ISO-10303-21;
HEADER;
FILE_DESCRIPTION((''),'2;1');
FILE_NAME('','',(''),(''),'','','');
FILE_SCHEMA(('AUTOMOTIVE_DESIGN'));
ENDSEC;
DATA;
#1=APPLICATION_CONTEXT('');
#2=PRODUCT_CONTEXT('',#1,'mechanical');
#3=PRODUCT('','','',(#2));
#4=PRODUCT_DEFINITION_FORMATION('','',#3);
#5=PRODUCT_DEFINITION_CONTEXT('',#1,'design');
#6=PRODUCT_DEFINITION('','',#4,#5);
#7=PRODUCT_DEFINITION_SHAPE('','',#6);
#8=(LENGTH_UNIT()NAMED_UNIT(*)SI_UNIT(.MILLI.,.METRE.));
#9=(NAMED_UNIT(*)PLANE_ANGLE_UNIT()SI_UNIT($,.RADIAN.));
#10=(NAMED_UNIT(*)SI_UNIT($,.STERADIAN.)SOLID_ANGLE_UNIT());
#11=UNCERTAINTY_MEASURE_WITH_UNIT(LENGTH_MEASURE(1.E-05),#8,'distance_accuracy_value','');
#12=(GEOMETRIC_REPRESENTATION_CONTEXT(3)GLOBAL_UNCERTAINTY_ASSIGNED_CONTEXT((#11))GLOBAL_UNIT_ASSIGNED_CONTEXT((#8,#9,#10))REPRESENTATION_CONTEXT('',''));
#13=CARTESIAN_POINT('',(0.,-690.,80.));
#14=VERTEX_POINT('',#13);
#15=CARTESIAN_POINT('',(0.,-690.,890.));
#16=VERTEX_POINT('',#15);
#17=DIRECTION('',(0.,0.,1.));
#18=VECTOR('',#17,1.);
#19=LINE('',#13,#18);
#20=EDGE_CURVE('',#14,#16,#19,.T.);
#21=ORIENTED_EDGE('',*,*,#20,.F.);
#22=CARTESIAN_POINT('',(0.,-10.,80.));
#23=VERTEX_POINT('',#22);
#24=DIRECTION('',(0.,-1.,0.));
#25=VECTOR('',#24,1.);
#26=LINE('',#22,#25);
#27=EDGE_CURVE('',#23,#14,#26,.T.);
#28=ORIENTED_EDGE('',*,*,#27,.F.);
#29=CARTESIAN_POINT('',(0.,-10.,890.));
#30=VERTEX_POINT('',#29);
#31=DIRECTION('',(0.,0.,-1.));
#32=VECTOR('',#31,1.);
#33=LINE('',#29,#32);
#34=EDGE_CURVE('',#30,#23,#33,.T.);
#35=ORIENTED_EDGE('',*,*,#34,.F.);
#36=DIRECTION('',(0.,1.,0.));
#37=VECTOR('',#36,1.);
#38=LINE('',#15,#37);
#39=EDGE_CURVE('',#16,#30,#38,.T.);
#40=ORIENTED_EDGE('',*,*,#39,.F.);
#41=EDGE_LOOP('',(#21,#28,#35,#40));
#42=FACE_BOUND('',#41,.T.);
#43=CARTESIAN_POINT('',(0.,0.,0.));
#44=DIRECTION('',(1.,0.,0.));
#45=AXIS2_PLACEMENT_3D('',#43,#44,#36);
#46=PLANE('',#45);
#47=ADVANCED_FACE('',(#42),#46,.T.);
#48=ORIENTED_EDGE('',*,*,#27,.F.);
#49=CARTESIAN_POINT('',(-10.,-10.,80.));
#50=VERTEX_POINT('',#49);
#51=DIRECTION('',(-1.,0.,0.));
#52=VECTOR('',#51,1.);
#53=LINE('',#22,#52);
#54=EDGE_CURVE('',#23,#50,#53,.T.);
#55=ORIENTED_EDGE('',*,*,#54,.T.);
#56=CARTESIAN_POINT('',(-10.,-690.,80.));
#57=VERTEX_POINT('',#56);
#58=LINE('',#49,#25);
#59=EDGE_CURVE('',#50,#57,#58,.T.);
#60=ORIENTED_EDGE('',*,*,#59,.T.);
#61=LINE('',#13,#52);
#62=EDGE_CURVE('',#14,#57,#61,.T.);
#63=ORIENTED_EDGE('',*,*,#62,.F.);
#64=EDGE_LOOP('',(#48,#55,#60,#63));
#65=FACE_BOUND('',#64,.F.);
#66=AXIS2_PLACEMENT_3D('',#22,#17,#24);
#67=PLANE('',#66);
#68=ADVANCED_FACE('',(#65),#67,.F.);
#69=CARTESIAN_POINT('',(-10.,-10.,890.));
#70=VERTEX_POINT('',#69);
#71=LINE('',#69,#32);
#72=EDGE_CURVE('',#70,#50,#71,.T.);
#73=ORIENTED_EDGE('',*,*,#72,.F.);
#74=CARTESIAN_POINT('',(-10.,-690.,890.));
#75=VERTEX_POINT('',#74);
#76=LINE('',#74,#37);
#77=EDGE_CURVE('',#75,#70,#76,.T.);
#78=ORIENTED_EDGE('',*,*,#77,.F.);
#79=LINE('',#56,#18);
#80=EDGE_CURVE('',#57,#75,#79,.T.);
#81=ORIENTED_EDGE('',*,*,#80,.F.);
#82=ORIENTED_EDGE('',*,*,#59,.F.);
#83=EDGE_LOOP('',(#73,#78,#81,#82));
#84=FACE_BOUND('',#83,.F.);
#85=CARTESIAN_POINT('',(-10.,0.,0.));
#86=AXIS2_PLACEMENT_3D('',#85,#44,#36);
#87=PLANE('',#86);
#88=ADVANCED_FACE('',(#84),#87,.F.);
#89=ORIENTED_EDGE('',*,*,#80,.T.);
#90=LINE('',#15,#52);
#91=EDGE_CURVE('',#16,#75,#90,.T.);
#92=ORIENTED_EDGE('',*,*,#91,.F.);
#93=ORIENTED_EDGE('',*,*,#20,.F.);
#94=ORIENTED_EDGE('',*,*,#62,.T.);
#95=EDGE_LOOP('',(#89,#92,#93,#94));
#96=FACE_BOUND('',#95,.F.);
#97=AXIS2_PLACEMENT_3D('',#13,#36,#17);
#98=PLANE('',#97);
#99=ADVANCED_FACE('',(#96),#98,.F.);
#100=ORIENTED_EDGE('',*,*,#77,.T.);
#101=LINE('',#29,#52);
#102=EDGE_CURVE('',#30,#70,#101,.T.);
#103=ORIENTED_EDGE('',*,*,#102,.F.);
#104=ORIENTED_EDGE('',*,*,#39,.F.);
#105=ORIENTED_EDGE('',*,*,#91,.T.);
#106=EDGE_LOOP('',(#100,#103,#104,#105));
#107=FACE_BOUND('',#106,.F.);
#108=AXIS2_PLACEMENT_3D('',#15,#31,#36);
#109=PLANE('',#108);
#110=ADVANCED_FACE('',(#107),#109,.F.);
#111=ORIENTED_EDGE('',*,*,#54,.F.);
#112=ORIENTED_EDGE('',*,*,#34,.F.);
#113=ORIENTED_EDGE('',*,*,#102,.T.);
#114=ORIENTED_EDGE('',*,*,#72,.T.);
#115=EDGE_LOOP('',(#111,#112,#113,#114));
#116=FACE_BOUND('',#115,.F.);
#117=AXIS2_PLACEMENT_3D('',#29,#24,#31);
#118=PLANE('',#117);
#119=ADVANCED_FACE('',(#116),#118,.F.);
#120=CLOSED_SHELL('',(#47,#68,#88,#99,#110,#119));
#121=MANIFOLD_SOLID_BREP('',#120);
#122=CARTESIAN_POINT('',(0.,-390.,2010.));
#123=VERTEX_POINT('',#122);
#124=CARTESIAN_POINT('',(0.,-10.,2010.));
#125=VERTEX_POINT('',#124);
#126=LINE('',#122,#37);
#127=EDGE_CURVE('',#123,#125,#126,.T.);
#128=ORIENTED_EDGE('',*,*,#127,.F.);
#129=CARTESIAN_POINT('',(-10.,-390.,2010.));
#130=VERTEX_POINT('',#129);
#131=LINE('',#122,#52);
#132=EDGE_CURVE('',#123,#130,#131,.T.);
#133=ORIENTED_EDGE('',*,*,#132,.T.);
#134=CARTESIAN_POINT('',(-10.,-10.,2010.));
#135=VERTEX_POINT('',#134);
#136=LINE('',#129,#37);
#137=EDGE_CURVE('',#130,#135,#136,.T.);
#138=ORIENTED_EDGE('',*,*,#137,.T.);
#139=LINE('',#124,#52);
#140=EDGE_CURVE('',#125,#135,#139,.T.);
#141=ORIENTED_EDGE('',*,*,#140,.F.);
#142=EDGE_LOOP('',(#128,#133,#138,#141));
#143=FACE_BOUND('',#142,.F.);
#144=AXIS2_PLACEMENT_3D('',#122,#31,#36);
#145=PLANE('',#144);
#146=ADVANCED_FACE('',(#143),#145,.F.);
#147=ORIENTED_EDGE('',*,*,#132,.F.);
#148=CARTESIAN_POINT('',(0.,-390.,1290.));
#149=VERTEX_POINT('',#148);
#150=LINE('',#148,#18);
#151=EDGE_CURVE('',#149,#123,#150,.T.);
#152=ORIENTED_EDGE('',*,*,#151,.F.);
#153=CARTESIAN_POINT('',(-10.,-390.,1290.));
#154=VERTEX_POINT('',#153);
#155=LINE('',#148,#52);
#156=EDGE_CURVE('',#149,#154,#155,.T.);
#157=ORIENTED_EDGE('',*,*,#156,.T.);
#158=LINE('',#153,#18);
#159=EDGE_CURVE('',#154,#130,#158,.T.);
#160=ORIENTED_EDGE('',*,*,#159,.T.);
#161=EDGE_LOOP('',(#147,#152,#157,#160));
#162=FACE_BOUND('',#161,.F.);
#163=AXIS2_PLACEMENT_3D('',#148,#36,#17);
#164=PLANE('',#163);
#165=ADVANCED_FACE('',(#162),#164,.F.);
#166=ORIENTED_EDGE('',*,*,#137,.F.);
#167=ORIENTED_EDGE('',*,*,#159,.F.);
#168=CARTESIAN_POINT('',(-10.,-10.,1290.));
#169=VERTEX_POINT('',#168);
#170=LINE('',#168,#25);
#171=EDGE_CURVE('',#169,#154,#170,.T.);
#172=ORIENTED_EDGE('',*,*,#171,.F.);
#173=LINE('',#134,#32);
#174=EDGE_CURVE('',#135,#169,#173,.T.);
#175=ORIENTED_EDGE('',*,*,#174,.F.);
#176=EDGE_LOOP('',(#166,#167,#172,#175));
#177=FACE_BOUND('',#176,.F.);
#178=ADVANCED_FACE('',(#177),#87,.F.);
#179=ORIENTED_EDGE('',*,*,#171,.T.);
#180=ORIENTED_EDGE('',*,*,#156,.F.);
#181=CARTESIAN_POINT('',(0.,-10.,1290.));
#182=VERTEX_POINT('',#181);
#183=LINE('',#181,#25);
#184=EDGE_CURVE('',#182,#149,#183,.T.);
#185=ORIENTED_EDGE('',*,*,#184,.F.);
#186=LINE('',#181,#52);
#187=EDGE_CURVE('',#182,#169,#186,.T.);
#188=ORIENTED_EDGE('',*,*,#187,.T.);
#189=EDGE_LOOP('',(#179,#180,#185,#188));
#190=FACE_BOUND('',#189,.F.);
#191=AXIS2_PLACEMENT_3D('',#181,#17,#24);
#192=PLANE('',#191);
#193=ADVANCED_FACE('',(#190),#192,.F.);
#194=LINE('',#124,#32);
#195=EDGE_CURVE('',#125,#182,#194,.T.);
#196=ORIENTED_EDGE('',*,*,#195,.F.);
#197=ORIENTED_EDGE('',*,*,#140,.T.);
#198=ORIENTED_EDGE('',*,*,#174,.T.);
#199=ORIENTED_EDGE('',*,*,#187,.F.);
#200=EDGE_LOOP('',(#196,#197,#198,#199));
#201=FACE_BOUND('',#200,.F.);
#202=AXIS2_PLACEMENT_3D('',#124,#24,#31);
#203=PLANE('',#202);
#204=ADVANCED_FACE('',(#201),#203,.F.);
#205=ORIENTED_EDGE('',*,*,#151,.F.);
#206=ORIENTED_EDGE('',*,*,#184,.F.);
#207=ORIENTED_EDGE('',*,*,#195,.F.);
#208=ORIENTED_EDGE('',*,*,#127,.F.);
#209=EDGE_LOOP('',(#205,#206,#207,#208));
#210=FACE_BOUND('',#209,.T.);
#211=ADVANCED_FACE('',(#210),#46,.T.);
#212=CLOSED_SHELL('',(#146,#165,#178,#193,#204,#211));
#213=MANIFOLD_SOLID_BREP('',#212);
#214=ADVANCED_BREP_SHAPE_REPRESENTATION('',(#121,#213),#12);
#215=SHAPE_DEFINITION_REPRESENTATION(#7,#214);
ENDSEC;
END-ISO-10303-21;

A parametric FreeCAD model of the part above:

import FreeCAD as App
import Part
import Sketcher
Q = App.Units.Quantity

doc = App.newDocument("Part")
body = doc.addObject("PartDesign::Body", "Body")
body.AllowCompound = True

# Sketch on YZ plane
sketch1 = body.newObject("Sketcher::SketchObject", "Sketch")
sketch1.AttachmentSupport = (doc.getObject("YZ_Plane"), [""])
sketch1.MapMode = "FlatFace"
sketch1.addGeometry([
    Part.LineSegment(App.Vector(-690, 80, 0), App.Vector(-10, 80, 0)),  # 0
    Part.LineSegment(App.Vector(-10, 80, 0), App.Vector(-10, 890, 0)),  # 1
    Part.LineSegment(App.Vector(-10, 890, 0), App.Vector(-690, 890, 0)),  # 2
    Part.LineSegment(App.Vector(-690, 890, 0), App.Vector(-690, 80, 0)),  # 3
    Part.LineSegment(App.Vector(-390, 1290, 0), App.Vector(-10, 1290, 0)),  # 4
    Part.LineSegment(App.Vector(-10, 1290, 0), App.Vector(-10, 2010, 0)),  # 5
    Part.LineSegment(App.Vector(-10, 2010, 0), App.Vector(-390, 2010, 0)),  # 6
    Part.LineSegment(App.Vector(-390, 2010, 0), App.Vector(-390, 1290, 0)),  # 7
], False)
sketch1.addConstraint([
    Sketcher.Constraint("Coincident", 0, 2, 1, 1),
    Sketcher.Constraint("Coincident", 1, 2, 2, 1),
    Sketcher.Constraint("Coincident", 2, 2, 3, 1),
    Sketcher.Constraint("Coincident", 3, 2, 0, 1),
    Sketcher.Constraint("Coincident", 4, 2, 5, 1),
    Sketcher.Constraint("Coincident", 5, 2, 6, 1),
    Sketcher.Constraint("Coincident", 6, 2, 7, 1),
    Sketcher.Constraint("Coincident", 7, 2, 4, 1),
    Sketcher.Constraint("Horizontal", 0),
    Sketcher.Constraint("Vertical", 1),
    Sketcher.Constraint("Horizontal", 2),
    Sketcher.Constraint("Vertical", 3),
    Sketcher.Constraint("Horizontal", 4),
    Sketcher.Constraint("Vertical", 5),
    Sketcher.Constraint("Horizontal", 6),
    Sketcher.Constraint("Vertical", 7),
    Sketcher.Constraint("Vertical", 1, 2, 4, 2),
    Sketcher.Constraint("DistanceX", 0, 1, 0, 2, Q("680 mm")),
    Sketcher.Constraint("DistanceX", 4, 1, 4, 2, Q("380 mm")),
    Sketcher.Constraint("DistanceY", 1, 1, 1, 2, Q("810 mm")),
    Sketcher.Constraint("DistanceY", 5, 1, 5, 2, Q("720 mm")),
    Sketcher.Constraint("DistanceX", 0, 2, -1, 1, Q("10 mm")),
    Sketcher.Constraint("DistanceY", -1, 1, 0, 2, Q("80 mm")),
    Sketcher.Constraint("DistanceY", 1, 2, 4, 2, Q("400 mm")),
])
pad1 = body.newObject("PartDesign::Pad", "Pad")
pad1.Profile = sketch1
pad1.Length = 10
pad1.Reversed = True

doc.recompute()
